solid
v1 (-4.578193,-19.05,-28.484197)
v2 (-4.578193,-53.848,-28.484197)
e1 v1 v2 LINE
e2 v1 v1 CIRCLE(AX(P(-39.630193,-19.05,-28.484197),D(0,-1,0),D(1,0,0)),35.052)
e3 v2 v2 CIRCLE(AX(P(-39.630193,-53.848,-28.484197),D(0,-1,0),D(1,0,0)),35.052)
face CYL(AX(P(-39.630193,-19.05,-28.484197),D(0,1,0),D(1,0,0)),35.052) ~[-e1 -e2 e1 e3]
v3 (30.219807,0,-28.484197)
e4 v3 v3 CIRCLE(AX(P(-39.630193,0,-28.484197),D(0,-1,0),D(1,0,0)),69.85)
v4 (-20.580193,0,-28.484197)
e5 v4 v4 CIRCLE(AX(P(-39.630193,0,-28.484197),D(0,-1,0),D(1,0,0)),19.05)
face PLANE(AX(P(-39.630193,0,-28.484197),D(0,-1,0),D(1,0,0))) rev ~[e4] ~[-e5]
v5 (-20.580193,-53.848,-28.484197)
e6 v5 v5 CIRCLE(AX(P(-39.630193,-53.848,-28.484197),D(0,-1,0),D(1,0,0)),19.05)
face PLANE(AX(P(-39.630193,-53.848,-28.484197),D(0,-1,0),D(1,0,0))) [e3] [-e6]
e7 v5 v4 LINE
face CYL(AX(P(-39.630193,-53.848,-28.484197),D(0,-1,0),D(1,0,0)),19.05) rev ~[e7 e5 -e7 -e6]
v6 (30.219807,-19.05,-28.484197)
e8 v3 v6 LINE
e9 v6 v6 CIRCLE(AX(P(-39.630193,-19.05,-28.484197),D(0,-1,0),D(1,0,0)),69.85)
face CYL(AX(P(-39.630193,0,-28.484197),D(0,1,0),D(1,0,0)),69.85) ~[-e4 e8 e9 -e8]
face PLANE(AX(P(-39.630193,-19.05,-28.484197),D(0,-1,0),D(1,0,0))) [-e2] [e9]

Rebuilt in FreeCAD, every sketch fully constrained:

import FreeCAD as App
import Part
import Sketcher

V = App.Vector
Q = App.Units.Quantity

doc = App.newDocument("Part")
body = doc.addObject("PartDesign::Body", "Body")

sketch1 = body.newObject("Sketcher::SketchObject", "Sketch")
sketch1.AttachmentSupport = (doc.getObject("XZ_Plane"), [""])
sketch1.MapMode = "FlatFace"
sketch1.addGeometry(Part.Circle(V(-39.630193, -28.484197, 0), V(0, 0, 1), 69.85), False)
sketch1.addConstraint(Sketcher.Constraint("Diameter", 0, Q("5.5 in")))
sketch1.addConstraint(Sketcher.Constraint("DistanceX", 0, 3, -1, 1, 39.630193))
sketch1.addConstraint(Sketcher.Constraint("DistanceY", 0, 3, -1, 1, 28.484197))
pad1 = body.newObject("PartDesign::Pad", "Pad")
pad1.Profile = sketch1
pad1.Length = Q("0.75 in")

sketch2 = body.newObject("Sketcher::SketchObject", "Sketch001")
sketch2.AttachmentSupport = (doc.getObject("XZ_Plane"), [""])
sketch2.MapMode = "FlatFace"
sketch2.AttachmentOffset = App.Placement(V(0, 0, 0.75 * 25.4), App.Rotation())
sketch2.addGeometry(Part.Circle(V(-39.630193, -28.484197, 0), V(0, 0, 1), 35.052), False)
sketch2.addConstraint(Sketcher.Constraint("Diameter", 0, Q("2.76 in")))
sketch2.addConstraint(Sketcher.Constraint("DistanceX", 0, 3, -1, 1, 39.630193))
sketch2.addConstraint(Sketcher.Constraint("DistanceY", 0, 3, -1, 1, 28.484197))
pad2 = body.newObject("PartDesign::Pad", "Pad001")
pad2.Profile = sketch2
pad2.Length = Q("1.37 in")

sketch3 = body.newObject("Sketcher::SketchObject", "Sketch002")
sketch3.AttachmentSupport = (doc.getObject("XZ_Plane"), [""])
sketch3.MapMode = "FlatFace"
sketch3.AttachmentOffset = App.Placement(V(0, 0, 2.12 * 25.4), App.Rotation())
sketch3.addGeometry(Part.Circle(V(-39.630193, -28.484197, 0), V(0, 0, 1), 19.05), False)
sketch3.addConstraint(Sketcher.Constraint("Diameter", 0, Q("1.5 in")))
sketch3.addConstraint(Sketcher.Constraint("DistanceX", 0, 3, -1, 1, 39.630193))
sketch3.addConstraint(Sketcher.Constraint("DistanceY", 0, 3, -1, 1, 28.484197))
pocket1 = body.newObject("PartDesign::Pocket", "Pocket")
pocket1.Profile = sketch3
pocket1.Type = "ThroughAll"

doc.recompute()
